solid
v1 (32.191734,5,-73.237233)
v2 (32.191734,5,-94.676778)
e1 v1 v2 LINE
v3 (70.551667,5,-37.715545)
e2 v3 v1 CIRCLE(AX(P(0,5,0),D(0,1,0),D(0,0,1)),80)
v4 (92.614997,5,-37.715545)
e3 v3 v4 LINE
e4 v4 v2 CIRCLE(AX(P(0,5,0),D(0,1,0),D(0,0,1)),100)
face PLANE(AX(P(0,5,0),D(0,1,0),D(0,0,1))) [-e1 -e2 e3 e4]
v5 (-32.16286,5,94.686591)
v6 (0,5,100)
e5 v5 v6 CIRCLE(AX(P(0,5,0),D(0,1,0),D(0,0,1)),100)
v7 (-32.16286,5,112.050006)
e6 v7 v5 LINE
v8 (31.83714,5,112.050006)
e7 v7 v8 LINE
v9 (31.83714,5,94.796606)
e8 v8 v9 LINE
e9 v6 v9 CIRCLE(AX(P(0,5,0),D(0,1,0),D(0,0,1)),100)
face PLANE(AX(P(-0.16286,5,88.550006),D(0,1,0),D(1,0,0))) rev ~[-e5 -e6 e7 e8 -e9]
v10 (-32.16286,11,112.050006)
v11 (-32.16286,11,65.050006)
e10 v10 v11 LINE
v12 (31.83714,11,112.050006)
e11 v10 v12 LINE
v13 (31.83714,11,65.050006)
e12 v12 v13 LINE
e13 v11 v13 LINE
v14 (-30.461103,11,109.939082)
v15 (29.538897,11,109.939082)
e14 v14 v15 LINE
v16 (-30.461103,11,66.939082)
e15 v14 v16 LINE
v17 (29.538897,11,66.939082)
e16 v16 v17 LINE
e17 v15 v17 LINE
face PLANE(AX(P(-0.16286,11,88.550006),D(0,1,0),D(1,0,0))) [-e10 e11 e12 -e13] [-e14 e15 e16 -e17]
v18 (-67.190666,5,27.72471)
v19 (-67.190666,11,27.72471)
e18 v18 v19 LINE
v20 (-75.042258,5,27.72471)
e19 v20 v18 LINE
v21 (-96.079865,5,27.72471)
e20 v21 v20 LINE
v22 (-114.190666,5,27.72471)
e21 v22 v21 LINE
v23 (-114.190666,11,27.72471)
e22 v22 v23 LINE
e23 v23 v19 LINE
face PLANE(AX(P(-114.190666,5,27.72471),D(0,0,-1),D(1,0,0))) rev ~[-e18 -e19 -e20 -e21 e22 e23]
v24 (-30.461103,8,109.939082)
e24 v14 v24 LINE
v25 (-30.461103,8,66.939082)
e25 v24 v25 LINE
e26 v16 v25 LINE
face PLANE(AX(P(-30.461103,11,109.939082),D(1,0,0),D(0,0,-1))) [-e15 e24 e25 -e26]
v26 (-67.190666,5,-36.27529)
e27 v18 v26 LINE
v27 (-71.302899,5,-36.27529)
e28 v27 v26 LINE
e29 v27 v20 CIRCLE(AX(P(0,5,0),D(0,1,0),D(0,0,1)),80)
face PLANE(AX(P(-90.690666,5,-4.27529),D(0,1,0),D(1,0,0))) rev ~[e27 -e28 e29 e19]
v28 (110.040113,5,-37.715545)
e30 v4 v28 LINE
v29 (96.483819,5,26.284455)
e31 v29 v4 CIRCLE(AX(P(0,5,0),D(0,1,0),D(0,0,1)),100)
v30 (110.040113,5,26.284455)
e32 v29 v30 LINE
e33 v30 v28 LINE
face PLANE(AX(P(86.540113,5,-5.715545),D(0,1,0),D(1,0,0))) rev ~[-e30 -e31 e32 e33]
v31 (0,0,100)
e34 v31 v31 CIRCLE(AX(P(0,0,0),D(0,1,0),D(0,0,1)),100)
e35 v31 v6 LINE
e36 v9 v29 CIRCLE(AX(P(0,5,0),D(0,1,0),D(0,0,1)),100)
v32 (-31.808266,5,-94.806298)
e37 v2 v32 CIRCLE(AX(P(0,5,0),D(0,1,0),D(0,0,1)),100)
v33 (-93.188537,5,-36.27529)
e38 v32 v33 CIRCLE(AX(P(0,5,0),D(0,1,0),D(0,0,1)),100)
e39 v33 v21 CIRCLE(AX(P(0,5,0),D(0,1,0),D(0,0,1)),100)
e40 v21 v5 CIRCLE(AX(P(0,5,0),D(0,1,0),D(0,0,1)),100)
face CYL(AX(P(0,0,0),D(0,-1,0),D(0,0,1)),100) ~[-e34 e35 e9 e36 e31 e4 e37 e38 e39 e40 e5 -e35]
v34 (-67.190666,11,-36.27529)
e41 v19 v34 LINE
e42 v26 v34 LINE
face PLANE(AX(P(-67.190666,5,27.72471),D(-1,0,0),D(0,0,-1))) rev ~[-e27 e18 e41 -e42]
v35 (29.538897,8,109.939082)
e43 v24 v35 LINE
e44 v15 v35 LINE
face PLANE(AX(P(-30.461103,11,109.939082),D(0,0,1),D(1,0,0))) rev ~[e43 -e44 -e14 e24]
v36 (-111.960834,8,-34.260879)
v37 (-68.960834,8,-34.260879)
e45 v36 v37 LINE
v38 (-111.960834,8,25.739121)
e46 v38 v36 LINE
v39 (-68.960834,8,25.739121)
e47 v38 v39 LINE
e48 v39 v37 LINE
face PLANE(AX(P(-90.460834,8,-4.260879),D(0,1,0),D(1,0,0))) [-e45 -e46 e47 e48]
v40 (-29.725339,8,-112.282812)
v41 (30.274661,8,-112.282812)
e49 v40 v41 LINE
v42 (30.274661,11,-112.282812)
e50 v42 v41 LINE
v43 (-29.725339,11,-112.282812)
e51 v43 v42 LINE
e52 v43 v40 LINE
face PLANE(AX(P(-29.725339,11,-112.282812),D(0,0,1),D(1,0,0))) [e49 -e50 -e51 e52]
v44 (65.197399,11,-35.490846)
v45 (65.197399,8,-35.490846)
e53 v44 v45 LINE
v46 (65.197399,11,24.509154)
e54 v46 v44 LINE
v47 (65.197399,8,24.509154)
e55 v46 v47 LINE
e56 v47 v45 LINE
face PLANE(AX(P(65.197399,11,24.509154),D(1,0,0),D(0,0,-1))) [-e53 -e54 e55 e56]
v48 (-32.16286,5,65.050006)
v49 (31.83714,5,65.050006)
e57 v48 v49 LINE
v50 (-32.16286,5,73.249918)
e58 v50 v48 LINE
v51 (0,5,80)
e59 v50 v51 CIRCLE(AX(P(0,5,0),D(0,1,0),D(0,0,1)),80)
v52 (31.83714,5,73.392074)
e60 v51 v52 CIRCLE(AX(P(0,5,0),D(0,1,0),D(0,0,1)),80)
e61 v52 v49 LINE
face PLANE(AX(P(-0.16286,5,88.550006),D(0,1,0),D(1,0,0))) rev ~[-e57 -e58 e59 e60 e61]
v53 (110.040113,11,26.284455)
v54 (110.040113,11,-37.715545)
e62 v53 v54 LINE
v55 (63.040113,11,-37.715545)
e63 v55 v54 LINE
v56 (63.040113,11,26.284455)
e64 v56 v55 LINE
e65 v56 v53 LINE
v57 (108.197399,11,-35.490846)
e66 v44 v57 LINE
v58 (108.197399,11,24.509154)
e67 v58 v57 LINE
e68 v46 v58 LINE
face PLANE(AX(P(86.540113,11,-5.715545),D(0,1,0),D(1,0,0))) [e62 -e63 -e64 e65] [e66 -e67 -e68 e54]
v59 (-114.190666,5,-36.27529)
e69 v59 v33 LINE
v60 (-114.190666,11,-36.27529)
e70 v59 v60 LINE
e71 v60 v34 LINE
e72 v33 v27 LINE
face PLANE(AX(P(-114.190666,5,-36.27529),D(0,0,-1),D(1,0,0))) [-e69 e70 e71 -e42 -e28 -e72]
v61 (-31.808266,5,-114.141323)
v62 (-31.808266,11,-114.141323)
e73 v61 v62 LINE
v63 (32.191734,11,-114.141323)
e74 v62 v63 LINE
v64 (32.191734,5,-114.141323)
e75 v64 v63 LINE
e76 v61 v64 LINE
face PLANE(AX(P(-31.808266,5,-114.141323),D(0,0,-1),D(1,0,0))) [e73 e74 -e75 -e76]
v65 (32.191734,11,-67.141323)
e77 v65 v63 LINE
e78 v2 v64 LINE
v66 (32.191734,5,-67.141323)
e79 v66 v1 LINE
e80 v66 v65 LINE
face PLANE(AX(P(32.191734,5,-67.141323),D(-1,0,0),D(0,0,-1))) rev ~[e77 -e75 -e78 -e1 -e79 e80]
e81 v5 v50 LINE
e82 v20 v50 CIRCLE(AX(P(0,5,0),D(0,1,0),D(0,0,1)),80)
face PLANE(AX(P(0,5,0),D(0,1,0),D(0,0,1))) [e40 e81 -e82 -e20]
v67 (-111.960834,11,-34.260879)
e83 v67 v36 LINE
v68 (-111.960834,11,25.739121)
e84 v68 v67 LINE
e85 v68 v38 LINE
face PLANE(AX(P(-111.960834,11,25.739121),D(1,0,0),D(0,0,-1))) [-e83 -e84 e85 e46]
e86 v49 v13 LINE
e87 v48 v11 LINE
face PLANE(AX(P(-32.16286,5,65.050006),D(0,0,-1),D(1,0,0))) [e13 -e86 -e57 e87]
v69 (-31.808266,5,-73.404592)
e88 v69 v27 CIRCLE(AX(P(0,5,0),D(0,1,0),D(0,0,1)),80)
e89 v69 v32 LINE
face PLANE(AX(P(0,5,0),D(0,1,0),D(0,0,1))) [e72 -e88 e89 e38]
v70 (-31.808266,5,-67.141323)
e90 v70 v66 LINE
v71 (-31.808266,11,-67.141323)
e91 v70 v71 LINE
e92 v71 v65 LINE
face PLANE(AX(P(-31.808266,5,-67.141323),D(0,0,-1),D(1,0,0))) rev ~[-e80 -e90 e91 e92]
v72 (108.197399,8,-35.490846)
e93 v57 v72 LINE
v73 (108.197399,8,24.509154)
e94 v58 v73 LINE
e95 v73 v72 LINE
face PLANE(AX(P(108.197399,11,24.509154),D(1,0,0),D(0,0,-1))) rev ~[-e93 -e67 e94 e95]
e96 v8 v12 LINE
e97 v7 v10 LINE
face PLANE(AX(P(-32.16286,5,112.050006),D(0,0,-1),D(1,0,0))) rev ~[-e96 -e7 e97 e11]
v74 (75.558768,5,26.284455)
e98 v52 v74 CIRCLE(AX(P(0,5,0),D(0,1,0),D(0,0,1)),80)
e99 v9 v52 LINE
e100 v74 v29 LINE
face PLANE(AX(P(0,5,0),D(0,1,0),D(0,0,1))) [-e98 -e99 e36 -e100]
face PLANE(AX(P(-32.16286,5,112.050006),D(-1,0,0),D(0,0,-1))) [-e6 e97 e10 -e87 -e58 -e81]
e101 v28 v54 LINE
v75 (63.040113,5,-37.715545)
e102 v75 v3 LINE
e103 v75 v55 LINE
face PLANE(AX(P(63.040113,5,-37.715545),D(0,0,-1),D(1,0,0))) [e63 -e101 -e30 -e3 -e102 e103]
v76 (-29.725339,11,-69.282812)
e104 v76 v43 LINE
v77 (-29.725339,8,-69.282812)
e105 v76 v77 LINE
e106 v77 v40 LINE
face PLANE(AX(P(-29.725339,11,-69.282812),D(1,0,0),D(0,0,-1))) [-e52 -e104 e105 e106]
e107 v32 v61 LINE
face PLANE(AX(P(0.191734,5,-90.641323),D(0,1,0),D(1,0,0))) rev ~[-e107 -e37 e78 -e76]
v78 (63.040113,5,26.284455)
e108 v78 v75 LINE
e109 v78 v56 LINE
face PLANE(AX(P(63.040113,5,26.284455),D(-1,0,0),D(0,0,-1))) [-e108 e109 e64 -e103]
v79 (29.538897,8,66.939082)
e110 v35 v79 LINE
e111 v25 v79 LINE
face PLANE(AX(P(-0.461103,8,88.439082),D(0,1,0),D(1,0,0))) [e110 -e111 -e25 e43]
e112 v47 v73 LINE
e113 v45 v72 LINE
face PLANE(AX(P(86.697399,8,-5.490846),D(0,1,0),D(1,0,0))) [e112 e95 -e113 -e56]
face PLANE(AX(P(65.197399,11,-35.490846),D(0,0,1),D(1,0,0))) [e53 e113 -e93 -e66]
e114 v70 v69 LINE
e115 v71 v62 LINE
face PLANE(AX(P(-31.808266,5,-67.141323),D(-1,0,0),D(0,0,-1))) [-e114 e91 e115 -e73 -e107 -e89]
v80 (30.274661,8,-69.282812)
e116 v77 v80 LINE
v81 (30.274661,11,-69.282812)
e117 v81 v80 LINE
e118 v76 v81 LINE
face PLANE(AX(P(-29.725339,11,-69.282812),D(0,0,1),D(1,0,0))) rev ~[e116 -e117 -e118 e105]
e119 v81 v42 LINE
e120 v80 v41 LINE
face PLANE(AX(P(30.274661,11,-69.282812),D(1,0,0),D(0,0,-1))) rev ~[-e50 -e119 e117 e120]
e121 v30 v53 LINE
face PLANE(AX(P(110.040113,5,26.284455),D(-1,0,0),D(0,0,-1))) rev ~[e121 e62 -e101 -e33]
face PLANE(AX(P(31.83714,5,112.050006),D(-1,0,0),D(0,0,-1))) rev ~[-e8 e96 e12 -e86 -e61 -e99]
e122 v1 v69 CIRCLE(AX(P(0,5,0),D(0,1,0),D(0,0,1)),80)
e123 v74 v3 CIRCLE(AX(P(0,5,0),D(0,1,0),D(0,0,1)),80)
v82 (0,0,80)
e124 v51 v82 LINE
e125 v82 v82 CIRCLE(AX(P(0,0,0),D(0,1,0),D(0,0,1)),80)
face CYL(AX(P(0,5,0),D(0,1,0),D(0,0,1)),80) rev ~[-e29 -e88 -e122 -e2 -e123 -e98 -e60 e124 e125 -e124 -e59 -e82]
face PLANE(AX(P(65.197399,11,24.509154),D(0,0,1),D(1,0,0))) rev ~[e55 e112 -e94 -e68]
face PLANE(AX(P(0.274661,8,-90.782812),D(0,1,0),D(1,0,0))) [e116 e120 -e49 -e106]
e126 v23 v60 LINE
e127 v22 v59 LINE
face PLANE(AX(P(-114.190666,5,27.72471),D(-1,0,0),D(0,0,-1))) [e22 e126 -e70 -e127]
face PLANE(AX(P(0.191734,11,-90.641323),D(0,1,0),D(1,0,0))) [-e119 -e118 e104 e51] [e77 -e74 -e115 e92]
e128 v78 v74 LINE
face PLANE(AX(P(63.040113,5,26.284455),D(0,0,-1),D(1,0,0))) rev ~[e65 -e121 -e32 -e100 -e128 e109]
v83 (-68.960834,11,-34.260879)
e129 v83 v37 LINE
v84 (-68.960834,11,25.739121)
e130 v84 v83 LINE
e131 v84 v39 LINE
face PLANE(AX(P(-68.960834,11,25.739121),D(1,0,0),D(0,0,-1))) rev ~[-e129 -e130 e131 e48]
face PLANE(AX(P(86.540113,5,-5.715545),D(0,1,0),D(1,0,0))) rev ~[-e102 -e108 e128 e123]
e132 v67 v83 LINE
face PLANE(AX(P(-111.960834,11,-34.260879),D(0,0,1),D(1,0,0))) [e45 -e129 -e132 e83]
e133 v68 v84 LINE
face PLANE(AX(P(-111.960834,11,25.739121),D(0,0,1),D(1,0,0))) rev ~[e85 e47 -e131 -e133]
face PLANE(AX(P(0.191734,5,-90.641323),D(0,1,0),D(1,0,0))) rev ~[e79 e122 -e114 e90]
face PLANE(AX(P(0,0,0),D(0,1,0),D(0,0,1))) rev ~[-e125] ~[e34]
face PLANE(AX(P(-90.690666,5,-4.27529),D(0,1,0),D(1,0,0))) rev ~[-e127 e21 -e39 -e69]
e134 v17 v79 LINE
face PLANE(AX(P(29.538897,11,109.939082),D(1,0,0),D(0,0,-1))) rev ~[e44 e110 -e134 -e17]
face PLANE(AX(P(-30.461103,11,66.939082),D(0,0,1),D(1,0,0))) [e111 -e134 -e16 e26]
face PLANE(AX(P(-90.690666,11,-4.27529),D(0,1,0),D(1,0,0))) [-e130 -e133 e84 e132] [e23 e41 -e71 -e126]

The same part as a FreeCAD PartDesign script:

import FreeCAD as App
import Part
import Sketcher
from FreeCAD import Vector
Q = App.Units.Quantity

doc = App.newDocument("Part")
body = doc.addObject("PartDesign::Body", "Body")

# Sketch on XZ plane
sketch1 = body.newObject("Sketcher::SketchObject", "Sketch")
sketch1.AttachmentSupport = (doc.getObject("XZ_Plane"), [""])
sketch1.MapMode = "FlatFace"
sketch1.addGeometry(Part.Circle(Vector(0, 0, 0), Vector(0, 0, 1), 100), False)
sketch1.addConstraint(Sketcher.Constraint("Coincident", 0, 3, -1, 1))
sketch1.addConstraint(Sketcher.Constraint("Diameter", 0, Q("200 mm")))
pad1 = body.newObject("PartDesign::Pad", "Pad")
pad1.Profile = sketch1
pad1.Length = 5
pad1.Reversed = True

# Sketch on XZ plane
sketch2 = body.newObject("Sketcher::SketchObject", "Sketch001")
sketch2.AttachmentSupport = (doc.getObject("XZ_Plane"), [""])
sketch2.MapMode = "FlatFace"
sketch2.AttachmentOffset = App.Placement(Vector(0, 0, -5), App.Rotation())
sketch2.addGeometry(Part.Circle(Vector(0, 0, 0), Vector(0, 0, 1), 80), False)
sketch2.addConstraint(Sketcher.Constraint("Coincident", 0, 3, -1, 1))
sketch2.addConstraint(Sketcher.Constraint("Diameter", 0, Q("160 mm")))
pocket1 = body.newObject("PartDesign::Pocket", "Pocket")
pocket1.Profile = sketch2
pocket1.Length = 5
pocket1.Reversed = True

# Sketch on XZ plane
sketch3 = body.newObject("Sketcher::SketchObject", "Sketch002")
sketch3.AttachmentSupport = (doc.getObject("XZ_Plane"), [""])
sketch3.MapMode = "FlatFace"
sketch3.AttachmentOffset = App.Placement(Vector(0, 0, -5), App.Rotation())
sketch3.addGeometry(Part.LineSegment(Vector(-32, 65, 0), Vector(-32, 112, 0)), False)
sketch3.addGeometry(Part.LineSegment(Vector(-32, 112, 0), Vector(32, 112, 0)), False)
sketch3.addGeometry(Part.LineSegment(Vector(32, 112, 0), Vector(32, 65, 0)), False)
sketch3.addGeometry(Part.LineSegment(Vector(32, 65, 0), Vector(-32, 65, 0)), False)
sketch3.addGeometry(Part.LineSegment(Vector(-32, -114, 0), Vector(-32, -67, 0)), False)
sketch3.addGeometry(Part.LineSegment(Vector(-32, -67, 0), Vector(32, -67, 0)), False)
sketch3.addGeometry(Part.LineSegment(Vector(32, -67, 0), Vector(32, -114, 0)), False)
sketch3.addGeometry(Part.LineSegment(Vector(32, -114, 0), Vector(-32, -114, 0)), False)
sketch3.addGeometry(Part.LineSegment(Vector(-114, -36, 0), Vector(-114, 28, 0)), False)
sketch3.addGeometry(Part.LineSegment(Vector(-114, 28, 0), Vector(-67, 28, 0)), False)
sketch3.addGeometry(Part.LineSegment(Vector(-67, 28, 0), Vector(-67, -36, 0)), False)
sketch3.addGeometry(Part.LineSegment(Vector(-67, -36, 0), Vector(-114, -36, 0)), False)
sketch3.addGeometry(Part.LineSegment(Vector(63, -38, 0), Vector(63, 26, 0)), False)
sketch3.addGeometry(Part.LineSegment(Vector(63, 26, 0), Vector(110, 26, 0)), False)
sketch3.addGeometry(Part.LineSegment(Vector(110, 26, 0), Vector(110, -38, 0)), False)
sketch3.addGeometry(Part.LineSegment(Vector(110, -38, 0), Vector(63, -38, 0)), False)
sketch3.addConstraint(Sketcher.Constraint("Coincident", 0, 2, 1, 1))
sketch3.addConstraint(Sketcher.Constraint("Coincident", 1, 2, 2, 1))
sketch3.addConstraint(Sketcher.Constraint("Coincident", 2, 2, 3, 1))
sketch3.addConstraint(Sketcher.Constraint("Coincident", 3, 2, 0, 1))
sketch3.addConstraint(Sketcher.Constraint("Coincident", 4, 2, 5, 1))
sketch3.addConstraint(Sketcher.Constraint("Coincident", 5, 2, 6, 1))
sketch3.addConstraint(Sketcher.Constraint("Coincident", 6, 2, 7, 1))
sketch3.addConstraint(Sketcher.Constraint("Coincident", 7, 2, 4, 1))
sketch3.addConstraint(Sketcher.Constraint("Coincident", 8, 2, 9, 1))
sketch3.addConstraint(Sketcher.Constraint("Coincident", 9, 2, 10, 1))
sketch3.addConstraint(Sketcher.Constraint("Coincident", 10, 2, 11, 1))
sketch3.addConstraint(Sketcher.Constraint("Coincident", 11, 2, 8, 1))
sketch3.addConstraint(Sketcher.Constraint("Coincident", 12, 2, 13, 1))
sketch3.addConstraint(Sketcher.Constraint("Coincident", 13, 2, 14, 1))
sketch3.addConstraint(Sketcher.Constraint("Coincident", 14, 2, 15, 1))
sketch3.addConstraint(Sketcher.Constraint("Coincident", 15, 2, 12, 1))
sketch3.addConstraint(Sketcher.Constraint("Vertical", 0))
sketch3.addConstraint(Sketcher.Constraint("Horizontal", 1))
sketch3.addConstraint(Sketcher.Constraint("Vertical", 2))
sketch3.addConstraint(Sketcher.Constraint("Horizontal", 3))
sketch3.addConstraint(Sketcher.Constraint("Vertical", 4))
sketch3.addConstraint(Sketcher.Constraint("Horizontal", 5))
sketch3.addConstraint(Sketcher.Constraint("Vertical", 6))
sketch3.addConstraint(Sketcher.Constraint("Horizontal", 7))
sketch3.addConstraint(Sketcher.Constraint("Vertical", 8))
sketch3.addConstraint(Sketcher.Constraint("Horizontal", 9))
sketch3.addConstraint(Sketcher.Constraint("Vertical", 10))
sketch3.addConstraint(Sketcher.Constraint("Horizontal", 11))
sketch3.addConstraint(Sketcher.Constraint("Vertical", 12))
sketch3.addConstraint(Sketcher.Constraint("Horizontal", 13))
sketch3.addConstraint(Sketcher.Constraint("Vertical", 14))
sketch3.addConstraint(Sketcher.Constraint("Horizontal", 15))
sketch3.addConstraint(Sketcher.Constraint("Equal", 3, 5))
sketch3.addConstraint(Sketcher.Constraint("Equal", 11, 13))
sketch3.addConstraint(Sketcher.Constraint("Equal", 15, 0))
sketch3.addConstraint(Sketcher.Constraint("Equal", 2, 4))
sketch3.addConstraint(Sketcher.Constraint("Equal", 7, 8))
sketch3.addConstraint(Sketcher.Constraint("Equal", 10, 12))
sketch3.addConstraint(Sketcher.Constraint("DistanceX", 1, 1, 1, 2, Q("64 mm")))
sketch3.addConstraint(Sketcher.Constraint("DistanceX", 9, 1, 9, 2, Q("47 mm")))
sketch3.addConstraint(Sketcher.Constraint("DistanceX", 8, 2, 4, 2, Q("82.3824 mm")))
sketch3.addConstraint(Sketcher.Constraint("DistanceX", 0, 2, -1, 1, Q("32.16286 mm")))
sketch3.addConstraint(Sketcher.Constraint("DistanceY", -1, 1, 8, 2, Q("27.72471 mm")))
sketch3.addConstraint(Sketcher.Constraint("DistanceY", 4, 2, 3, 2, Q("132.191329 mm")))
sketch3.addConstraint(Sketcher.Constraint("DistanceY", 12, 2, 2, 2, Q("38.765551 mm")))
sketch3.addConstraint(Sketcher.Constraint("DistanceX", 5, 2, 12, 2, Q("30.84838 mm")))
sketch3.addConstraint(Sketcher.Constraint("DistanceY", -1, 1, 0, 2, Q("112.050006 mm")))
sketch3.addConstraint(Sketcher.Constraint("DistanceX", 4, 2, -1, 1, Q("31.808266 mm")))
pad2 = body.newObject("PartDesign::Pad", "Pad001")
pad2.Profile = sketch3
pad2.Length = 6
pad2.Reversed = True

# Sketch on XZ plane
sketch4 = body.newObject("Sketcher::SketchObject", "Sketch003")
sketch4.AttachmentSupport = (doc.getObject("XZ_Plane"), [""])
sketch4.MapMode = "FlatFace"
sketch4.AttachmentOffset = App.Placement(Vector(0, 0, -11), App.Rotation())
sketch4.addGeometry(Part.LineSegment(Vector(-30, 67, 0), Vector(-30, 110, 0)), False)
sketch4.addGeometry(Part.LineSegment(Vector(-30, 110, 0), Vector(30, 110, 0)), False)
sketch4.addGeometry(Part.LineSegment(Vector(30, 110, 0), Vector(30, 67, 0)), False)
sketch4.addGeometry(Part.LineSegment(Vector(30, 67, 0), Vector(-30, 67, 0)), False)
sketch4.addGeometry(Part.LineSegment(Vector(-30, -112, 0), Vector(-30, -69, 0)), False)
sketch4.addGeometry(Part.LineSegment(Vector(-30, -69, 0), Vector(30, -69, 0)), False)
sketch4.addGeometry(Part.LineSegment(Vector(30, -69, 0), Vector(30, -112, 0)), False)
sketch4.addGeometry(Part.LineSegment(Vector(30, -112, 0), Vector(-30, -112, 0)), False)
sketch4.addGeometry(Part.LineSegment(Vector(65, -35, 0), Vector(65, 25, 0)), False)
sketch4.addGeometry(Part.LineSegment(Vector(65, 25, 0), Vector(108, 25, 0)), False)
sketch4.addGeometry(Part.LineSegment(Vector(108, 25, 0), Vector(108, -35, 0)), False)
sketch4.addGeometry(Part.LineSegment(Vector(108, -35, 0), Vector(65, -35, 0)), False)
sketch4.addGeometry(Part.LineSegment(Vector(-112, -34, 0), Vector(-112, 26, 0)), False)
sketch4.addGeometry(Part.LineSegment(Vector(-112, 26, 0), Vector(-69, 26, 0)), False)
sketch4.addGeometry(Part.LineSegment(Vector(-69, 26, 0), Vector(-69, -34, 0)), False)
sketch4.addGeometry(Part.LineSegment(Vector(-69, -34, 0), Vector(-112, -34, 0)), False)
sketch4.addConstraint(Sketcher.Constraint("Coincident", 0, 2, 1, 1))
sketch4.addConstraint(Sketcher.Constraint("Coincident", 1, 2, 2, 1))
sketch4.addConstraint(Sketcher.Constraint("Coincident", 2, 2, 3, 1))
sketch4.addConstraint(Sketcher.Constraint("Coincident", 3, 2, 0, 1))
sketch4.addConstraint(Sketcher.Constraint("Coincident", 4, 2, 5, 1))
sketch4.addConstraint(Sketcher.Constraint("Coincident", 5, 2, 6, 1))
sketch4.addConstraint(Sketcher.Constraint("Coincident", 6, 2, 7, 1))
sketch4.addConstraint(Sketcher.Constraint("Coincident", 7, 2, 4, 1))
sketch4.addConstraint(Sketcher.Constraint("Coincident", 8, 2, 9, 1))
sketch4.addConstraint(Sketcher.Constraint("Coincident", 9, 2, 10, 1))
sketch4.addConstraint(Sketcher.Constraint("Coincident", 10, 2, 11, 1))
sketch4.addConstraint(Sketcher.Constraint("Coincident", 11, 2, 8, 1))
sketch4.addConstraint(Sketcher.Constraint("Coincident", 12, 2, 13, 1))
sketch4.addConstraint(Sketcher.Constraint("Coincident", 13, 2, 14, 1))
sketch4.addConstraint(Sketcher.Constraint("Coincident", 14, 2, 15, 1))
sketch4.addConstraint(Sketcher.Constraint("Coincident", 15, 2, 12, 1))
sketch4.addConstraint(Sketcher.Constraint("Vertical", 0))
sketch4.addConstraint(Sketcher.Constraint("Horizontal", 1))
sketch4.addConstraint(Sketcher.Constraint("Vertical", 2))
sketch4.addConstraint(Sketcher.Constraint("Horizontal", 3))
sketch4.addConstraint(Sketcher.Constraint("Vertical", 4))
sketch4.addConstraint(Sketcher.Constraint("Horizontal", 5))
sketch4.addConstraint(Sketcher.Constraint("Vertical", 6))
sketch4.addConstraint(Sketcher.Constraint("Horizontal", 7))
sketch4.addConstraint(Sketcher.Constraint("Vertical", 8))
sketch4.addConstraint(Sketcher.Constraint("Horizontal", 9))
sketch4.addConstraint(Sketcher.Constraint("Vertical", 10))
sketch4.addConstraint(Sketcher.Constraint("Horizontal", 11))
sketch4.addConstraint(Sketcher.Constraint("Vertical", 12))
sketch4.addConstraint(Sketcher.Constraint("Horizontal", 13))
sketch4.addConstraint(Sketcher.Constraint("Vertical", 14))
sketch4.addConstraint(Sketcher.Constraint("Horizontal", 15))
sketch4.addConstraint(Sketcher.Constraint("Equal", 3, 5))
sketch4.addConstraint(Sketcher.Constraint("Equal", 11, 13))
sketch4.addConstraint(Sketcher.Constraint("Equal", 15, 0))
sketch4.addConstraint(Sketcher.Constraint("Equal", 2, 4))
sketch4.addConstraint(Sketcher.Constraint("Equal", 7, 8))
sketch4.addConstraint(Sketcher.Constraint("Equal", 10, 12))
sketch4.addConstraint(Sketcher.Constraint("DistanceX", 1, 1, 1, 2, Q("60 mm")))
sketch4.addConstraint(Sketcher.Constraint("DistanceX", 9, 1, 9, 2, Q("43 mm")))
sketch4.addConstraint(Sketcher.Constraint("DistanceX", -1, 1, 8, 2, Q("65.197399 mm")))
sketch4.addConstraint(Sketcher.Constraint("DistanceX", 4, 2, -1, 1, Q("29.725339 mm")))
sketch4.addConstraint(Sketcher.Constraint("DistanceY", 4, 2, -1, 1, Q("69.282812 mm")))
sketch4.addConstraint(Sketcher.Constraint("DistanceY", -1, 1, 12, 2, Q("25.739121 mm")))
sketch4.addConstraint(Sketcher.Constraint("DistanceY", 8, 2, 2, 2, Q("42.429928 mm")))
sketch4.addConstraint(Sketcher.Constraint("DistanceX", 12, 2, 3, 2, Q("81.499731 mm")))
sketch4.addConstraint(Sketcher.Constraint("DistanceY", 12, 2, 3, 2, Q("41.199961 mm")))
sketch4.addConstraint(Sketcher.Constraint("DistanceX", 0, 2, -1, 1, Q("30.461103 mm")))
pocket2 = body.newObject("PartDesign::Pocket", "Pocket001")
pocket2.Profile = sketch4
pocket2.Length = 3
pocket2.Reversed = True

doc.recompute()
